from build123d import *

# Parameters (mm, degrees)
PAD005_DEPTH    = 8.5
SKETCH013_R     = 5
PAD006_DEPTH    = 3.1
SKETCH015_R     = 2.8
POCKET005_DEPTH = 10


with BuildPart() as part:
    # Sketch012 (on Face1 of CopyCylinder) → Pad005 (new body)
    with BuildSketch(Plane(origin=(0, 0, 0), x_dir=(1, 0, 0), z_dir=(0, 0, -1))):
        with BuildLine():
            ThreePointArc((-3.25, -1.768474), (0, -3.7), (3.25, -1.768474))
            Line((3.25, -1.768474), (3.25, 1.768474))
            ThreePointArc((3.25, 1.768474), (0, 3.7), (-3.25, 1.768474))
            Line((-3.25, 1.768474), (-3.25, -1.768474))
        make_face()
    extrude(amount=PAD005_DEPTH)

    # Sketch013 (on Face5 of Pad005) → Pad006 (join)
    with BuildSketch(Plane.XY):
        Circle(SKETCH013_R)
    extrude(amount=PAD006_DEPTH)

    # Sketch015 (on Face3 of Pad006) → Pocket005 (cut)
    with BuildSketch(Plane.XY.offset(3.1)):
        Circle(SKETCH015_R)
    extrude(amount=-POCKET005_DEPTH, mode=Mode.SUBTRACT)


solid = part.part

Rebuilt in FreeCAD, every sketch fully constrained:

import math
import FreeCAD as App
import Part
import Sketcher
from FreeCAD import Vector

doc = App.newDocument("Part")
body = doc.addObject("PartDesign::Body", "Body")

sketch1 = body.newObject("Sketcher::SketchObject", "Sketch")
sketch1.AttachmentSupport = (doc.getObject("XY_Plane"), [""])
sketch1.MapMode = "FlatFace"
sketch1.addGeometry(Part.ArcOfCircle(Part.Circle(Vector(0, 0, 0), Vector(0, 0, 1), 3.7), math.radians(29), math.radians(151)), False)
sketch1.addGeometry(Part.LineSegment(Vector(3.2, 1.8, 0), Vector(3.2, -1.8, 0)), False)
sketch1.addGeometry(Part.ArcOfCircle(Part.Circle(Vector(0, 0, 0), Vector(0, 0, 1), 3.7), math.radians(-151), math.radians(-29)), False)
sketch1.addGeometry(Part.LineSegment(Vector(-3.2, -1.8, 0), Vector(-3.2, 1.8, 0)), False)
sketch1.addConstraint(Sketcher.Constraint("Coincident", 0, 1, 1, 1))
sketch1.addConstraint(Sketcher.Constraint("Coincident", 1, 2, 2, 2))
sketch1.addConstraint(Sketcher.Constraint("Coincident", 2, 1, 3, 1))
sketch1.addConstraint(Sketcher.Constraint("Coincident", 3, 2, 0, 2))
sketch1.addConstraint(Sketcher.Constraint("Vertical", 1))
sketch1.addConstraint(Sketcher.Constraint("Vertical", 3))
sketch1.addConstraint(Sketcher.Constraint("Coincident", 0, 3, -1, 1))
sketch1.addConstraint(Sketcher.Constraint("Coincident", 2, 3, -1, 1))
sketch1.addConstraint(Sketcher.Constraint("Equal", 0, 2))
sketch1.addConstraint(Sketcher.Constraint("Horizontal", 1, 2, 2, 1))
sketch1.addConstraint(Sketcher.Constraint("Radius", 0, 3.7))
sketch1.addConstraint(Sketcher.Constraint("DistanceX", 2, 1, 1, 2, 6.5))
pad1 = body.newObject("PartDesign::Pad", "Pad")
pad1.Profile = sketch1
pad1.Length = 8.5
pad1.Reversed = True

sketch2 = body.newObject("Sketcher::SketchObject", "Sketch001")
sketch2.AttachmentSupport = (doc.getObject("XY_Plane"), [""])
sketch2.MapMode = "FlatFace"
sketch2.addGeometry(Part.Circle(Vector(0, 0, 0), Vector(0, 0, 1), 5), False)
sketch2.addConstraint(Sketcher.Constraint("Coincident", 0, 3, -1, 1))
sketch2.addConstraint(Sketcher.Constraint("Diameter", 0, 10.0))
pad2 = body.newObject("PartDesign::Pad", "Pad001")
pad2.Profile = sketch2
pad2.Length = 3.1

sketch3 = body.newObject("Sketcher::SketchObject", "Sketch002")
sketch3.AttachmentSupport = (doc.getObject("XY_Plane"), [""])
sketch3.MapMode = "FlatFace"
sketch3.AttachmentOffset = App.Placement(Vector(0, 0, 3.1), App.Rotation())
sketch3.addGeometry(Part.Circle(Vector(0, 0, 0), Vector(0, 0, 1), 2.8), False)
sketch3.addConstraint(Sketcher.Constraint("Coincident", 0, 3, -1, 1))
sketch3.addConstraint(Sketcher.Constraint("Diameter", 0, 5.6))
pocket1 = body.newObject("PartDesign::Pocket", "Pocket")
pocket1.Profile = sketch3
pocket1.Length = 10

doc.recompute()
